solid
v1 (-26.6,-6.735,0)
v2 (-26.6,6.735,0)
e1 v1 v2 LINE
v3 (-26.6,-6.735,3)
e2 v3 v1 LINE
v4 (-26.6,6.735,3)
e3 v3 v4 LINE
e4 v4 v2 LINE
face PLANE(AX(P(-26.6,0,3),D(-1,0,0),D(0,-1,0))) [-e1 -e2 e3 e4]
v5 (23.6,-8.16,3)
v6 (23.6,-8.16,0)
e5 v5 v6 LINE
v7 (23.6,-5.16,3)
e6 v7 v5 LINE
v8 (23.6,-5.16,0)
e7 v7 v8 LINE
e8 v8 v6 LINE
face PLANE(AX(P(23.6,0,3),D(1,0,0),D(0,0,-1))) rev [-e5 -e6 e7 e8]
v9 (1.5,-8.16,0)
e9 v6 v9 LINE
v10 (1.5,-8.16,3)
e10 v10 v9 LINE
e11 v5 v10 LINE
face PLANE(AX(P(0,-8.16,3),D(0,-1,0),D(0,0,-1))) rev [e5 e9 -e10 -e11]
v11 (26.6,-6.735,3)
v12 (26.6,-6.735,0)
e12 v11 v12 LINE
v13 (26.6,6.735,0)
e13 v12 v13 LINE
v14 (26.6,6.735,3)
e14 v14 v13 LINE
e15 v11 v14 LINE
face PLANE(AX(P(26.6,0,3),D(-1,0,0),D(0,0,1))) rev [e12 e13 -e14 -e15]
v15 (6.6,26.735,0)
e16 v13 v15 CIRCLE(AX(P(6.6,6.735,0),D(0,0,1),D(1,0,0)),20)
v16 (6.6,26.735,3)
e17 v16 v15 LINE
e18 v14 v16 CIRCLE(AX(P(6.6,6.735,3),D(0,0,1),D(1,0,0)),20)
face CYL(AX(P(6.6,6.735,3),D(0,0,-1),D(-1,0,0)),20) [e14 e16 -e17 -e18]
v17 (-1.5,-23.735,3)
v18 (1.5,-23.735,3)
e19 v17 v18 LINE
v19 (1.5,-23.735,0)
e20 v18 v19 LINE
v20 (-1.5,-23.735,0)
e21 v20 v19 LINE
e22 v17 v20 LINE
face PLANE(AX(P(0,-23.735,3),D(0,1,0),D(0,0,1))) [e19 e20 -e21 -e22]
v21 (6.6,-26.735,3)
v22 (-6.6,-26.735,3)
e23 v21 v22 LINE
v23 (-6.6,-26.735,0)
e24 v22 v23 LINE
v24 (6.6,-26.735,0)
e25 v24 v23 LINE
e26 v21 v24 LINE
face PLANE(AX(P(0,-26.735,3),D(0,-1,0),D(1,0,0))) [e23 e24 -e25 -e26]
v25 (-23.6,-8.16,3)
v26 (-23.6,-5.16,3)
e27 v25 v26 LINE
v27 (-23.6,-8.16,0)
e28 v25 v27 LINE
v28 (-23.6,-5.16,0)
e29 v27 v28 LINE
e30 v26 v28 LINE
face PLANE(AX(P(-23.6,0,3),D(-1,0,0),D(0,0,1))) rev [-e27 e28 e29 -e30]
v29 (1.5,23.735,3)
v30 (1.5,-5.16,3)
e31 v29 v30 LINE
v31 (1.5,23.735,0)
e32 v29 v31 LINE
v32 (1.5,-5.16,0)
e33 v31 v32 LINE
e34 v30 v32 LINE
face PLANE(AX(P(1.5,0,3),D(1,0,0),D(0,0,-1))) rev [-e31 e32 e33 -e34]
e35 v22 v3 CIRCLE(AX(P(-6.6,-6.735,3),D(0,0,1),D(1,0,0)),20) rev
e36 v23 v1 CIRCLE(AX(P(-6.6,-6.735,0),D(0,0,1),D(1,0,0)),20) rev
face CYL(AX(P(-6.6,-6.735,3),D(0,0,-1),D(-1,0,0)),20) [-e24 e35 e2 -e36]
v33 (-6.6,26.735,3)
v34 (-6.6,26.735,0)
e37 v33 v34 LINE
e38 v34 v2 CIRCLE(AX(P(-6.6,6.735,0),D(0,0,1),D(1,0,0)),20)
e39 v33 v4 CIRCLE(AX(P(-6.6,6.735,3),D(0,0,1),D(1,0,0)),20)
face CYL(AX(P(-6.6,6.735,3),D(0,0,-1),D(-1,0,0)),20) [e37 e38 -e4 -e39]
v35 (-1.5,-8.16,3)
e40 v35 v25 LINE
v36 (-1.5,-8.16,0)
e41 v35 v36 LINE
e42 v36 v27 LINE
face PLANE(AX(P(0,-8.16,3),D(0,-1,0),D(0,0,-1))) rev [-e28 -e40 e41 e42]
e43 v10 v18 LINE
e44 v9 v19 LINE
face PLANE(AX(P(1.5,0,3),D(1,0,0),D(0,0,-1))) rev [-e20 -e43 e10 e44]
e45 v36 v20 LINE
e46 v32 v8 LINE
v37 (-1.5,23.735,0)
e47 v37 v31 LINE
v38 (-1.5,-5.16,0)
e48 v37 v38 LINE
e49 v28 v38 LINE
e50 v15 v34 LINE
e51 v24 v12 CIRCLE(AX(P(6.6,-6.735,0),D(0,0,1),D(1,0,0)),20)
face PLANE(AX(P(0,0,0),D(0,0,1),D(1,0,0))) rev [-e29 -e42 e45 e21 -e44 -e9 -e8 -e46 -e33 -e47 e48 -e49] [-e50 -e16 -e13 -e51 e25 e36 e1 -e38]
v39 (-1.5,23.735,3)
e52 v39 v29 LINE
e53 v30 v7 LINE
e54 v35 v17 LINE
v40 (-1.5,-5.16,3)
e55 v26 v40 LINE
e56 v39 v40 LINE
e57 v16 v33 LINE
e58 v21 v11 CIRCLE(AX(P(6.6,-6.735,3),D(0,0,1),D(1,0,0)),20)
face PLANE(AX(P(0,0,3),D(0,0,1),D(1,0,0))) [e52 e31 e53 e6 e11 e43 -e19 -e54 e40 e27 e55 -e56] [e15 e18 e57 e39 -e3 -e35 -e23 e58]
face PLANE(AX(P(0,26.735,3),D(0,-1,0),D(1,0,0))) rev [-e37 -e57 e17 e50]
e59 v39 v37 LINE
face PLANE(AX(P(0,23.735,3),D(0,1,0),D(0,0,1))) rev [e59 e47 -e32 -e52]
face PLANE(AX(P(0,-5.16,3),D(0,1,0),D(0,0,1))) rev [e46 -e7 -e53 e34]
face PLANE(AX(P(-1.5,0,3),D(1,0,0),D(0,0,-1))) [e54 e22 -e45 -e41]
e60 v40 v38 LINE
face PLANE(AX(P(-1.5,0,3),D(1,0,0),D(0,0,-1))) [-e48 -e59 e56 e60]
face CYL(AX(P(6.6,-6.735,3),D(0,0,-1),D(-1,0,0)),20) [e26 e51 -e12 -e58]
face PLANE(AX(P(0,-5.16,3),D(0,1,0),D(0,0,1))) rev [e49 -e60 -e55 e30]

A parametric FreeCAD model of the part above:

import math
import FreeCAD as App
import Part
import Sketcher


def add_polygon(sketch, points):
    """Adds a closed chain of lines whose ends are joined by coincident constraints."""
    first, n = sketch.GeometryCount, len(points)
    for a, b in zip(points, points[1:] + points[:1]):
        sketch.addGeometry(Part.LineSegment(App.Vector(*a, 0), App.Vector(*b, 0)), False)
    for i in range(n):
        sketch.addConstraint(Sketcher.Constraint("Coincident", first + i, 2, first + (i + 1) % n, 1))

doc = App.newDocument("Part")
body = doc.addObject("PartDesign::Body", "Body")

sketch1 = body.newObject("Sketcher::SketchObject", "Sketch")
sketch1.AttachmentSupport = (doc.getObject("XY_Plane"), [""])
sketch1.MapMode = "FlatFace"
sketch1.addGeometry(Part.LineSegment(App.Vector(-6.6, -26.735, 0), App.Vector(6.6, -26.735, 0)), False)
sketch1.addGeometry(Part.ArcOfCircle(Part.Circle(App.Vector(6.6, -6.735, 0), App.Vector(0, 0, 1), 20), math.radians(-90), math.radians(0)), False)
sketch1.addGeometry(Part.LineSegment(App.Vector(26.6, -6.735, 0), App.Vector(26.6, 6.735, 0)), False)
sketch1.addGeometry(Part.ArcOfCircle(Part.Circle(App.Vector(6.6, 6.735, 0), App.Vector(0, 0, 1), 20), math.radians(0), math.radians(90)), False)
sketch1.addGeometry(Part.LineSegment(App.Vector(6.6, 26.735, 0), App.Vector(-6.6, 26.735, 0)), False)
sketch1.addGeometry(Part.ArcOfCircle(Part.Circle(App.Vector(-6.6, 6.735, 0), App.Vector(0, 0, 1), 20), math.radians(90), math.radians(180)), False)
sketch1.addGeometry(Part.LineSegment(App.Vector(-26.6, 6.735, 0), App.Vector(-26.6, -6.735, 0)), False)
sketch1.addGeometry(Part.ArcOfCircle(Part.Circle(App.Vector(-6.6, -6.735, 0), App.Vector(0, 0, 1), 20), math.radians(180), math.radians(270)), False)
add_polygon(sketch1, [(-1.5, -8.16), (-23.6, -8.16), (-23.6, -5.16), (-1.5, -5.16), (-1.5, 23.735), (1.5, 23.735), (1.5, -5.16), (23.6, -5.16), (23.6, -8.16), (1.5, -8.16), (1.5, -23.735), (-1.5, -23.735)])
sketch1.addConstraint(Sketcher.Constraint("Tangent", 0, 2, 1, 1))
sketch1.addConstraint(Sketcher.Constraint("Tangent", 1, 2, 2, 1))
sketch1.addConstraint(Sketcher.Constraint("Tangent", 2, 2, 3, 1))
sketch1.addConstraint(Sketcher.Constraint("Tangent", 3, 2, 4, 1))
sketch1.addConstraint(Sketcher.Constraint("Tangent", 4, 2, 5, 1))
sketch1.addConstraint(Sketcher.Constraint("Tangent", 5, 2, 6, 1))
sketch1.addConstraint(Sketcher.Constraint("Tangent", 6, 2, 7, 1))
sketch1.addConstraint(Sketcher.Constraint("Tangent", 7, 2, 0, 1))
sketch1.addConstraint(Sketcher.Constraint("Horizontal", 0))
sketch1.addConstraint(Sketcher.Constraint("Vertical", 2))
sketch1.addConstraint(Sketcher.Constraint("Horizontal", 4))
sketch1.addConstraint(Sketcher.Constraint("Vertical", 6))
sketch1.addConstraint(Sketcher.Constraint("Horizontal", 8))
sketch1.addConstraint(Sketcher.Constraint("Vertical", 9))
sketch1.addConstraint(Sketcher.Constraint("Horizontal", 10))
sketch1.addConstraint(Sketcher.Constraint("Vertical", 11))
sketch1.addConstraint(Sketcher.Constraint("Horizontal", 12))
sketch1.addConstraint(Sketcher.Constraint("Vertical", 13))
sketch1.addConstraint(Sketcher.Constraint("Horizontal", 14))
sketch1.addConstraint(Sketcher.Constraint("Vertical", 15))
sketch1.addConstraint(Sketcher.Constraint("Horizontal", 16))
sketch1.addConstraint(Sketcher.Constraint("Vertical", 17))
sketch1.addConstraint(Sketcher.Constraint("Horizontal", 18))
sketch1.addConstraint(Sketcher.Constraint("Vertical", 19))
sketch1.addConstraint(Sketcher.Constraint("Equal", 1, 3))
sketch1.addConstraint(Sketcher.Constraint("Equal", 3, 5))
sketch1.addConstraint(Sketcher.Constraint("Equal", 5, 7))
sketch1.addConstraint(Sketcher.Constraint("Symmetric", 1, 3, 5, 3, -1, 1))
sketch1.addConstraint(Sketcher.Constraint("Symmetric", 11, 2, 17, 2, -1, 1))
sketch1.addConstraint(Sketcher.Constraint("Symmetric", 10, 2, 13, 2, -2))
sketch1.addConstraint(Sketcher.Constraint("Symmetric", 8, 2, 15, 2, -2))
sketch1.addConstraint(Sketcher.Constraint("Vertical", 11, 2, 18, 2))
sketch1.addConstraint(Sketcher.Constraint("Equal", 18, 9))
sketch1.addConstraint(Sketcher.Constraint("Radius", 1, 20.0))
sketch1.addConstraint(Sketcher.Constraint("DistanceX", 12, 1, 12, 2, 3.0))
sketch1.addConstraint(Sketcher.Constraint("DistanceX", 0, 1, 0, 2, 13.2))
sketch1.addConstraint(Sketcher.Constraint("DistanceX", 8, 2, 8, 1, 22.1))
sketch1.addConstraint(Sketcher.Constraint("DistanceY", 11, 2, 4, 2, 3.0))
sketch1.addConstraint(Sketcher.Constraint("DistanceY", 2, 1, 2, 2, 13.47))
sketch1.addConstraint(Sketcher.Constraint("DistanceY", 11, 1, 11, 2, 28.895))
pad1 = body.newObject("PartDesign::Pad", "Pad")
pad1.Profile = sketch1
pad1.Length = 3

doc.recompute()
